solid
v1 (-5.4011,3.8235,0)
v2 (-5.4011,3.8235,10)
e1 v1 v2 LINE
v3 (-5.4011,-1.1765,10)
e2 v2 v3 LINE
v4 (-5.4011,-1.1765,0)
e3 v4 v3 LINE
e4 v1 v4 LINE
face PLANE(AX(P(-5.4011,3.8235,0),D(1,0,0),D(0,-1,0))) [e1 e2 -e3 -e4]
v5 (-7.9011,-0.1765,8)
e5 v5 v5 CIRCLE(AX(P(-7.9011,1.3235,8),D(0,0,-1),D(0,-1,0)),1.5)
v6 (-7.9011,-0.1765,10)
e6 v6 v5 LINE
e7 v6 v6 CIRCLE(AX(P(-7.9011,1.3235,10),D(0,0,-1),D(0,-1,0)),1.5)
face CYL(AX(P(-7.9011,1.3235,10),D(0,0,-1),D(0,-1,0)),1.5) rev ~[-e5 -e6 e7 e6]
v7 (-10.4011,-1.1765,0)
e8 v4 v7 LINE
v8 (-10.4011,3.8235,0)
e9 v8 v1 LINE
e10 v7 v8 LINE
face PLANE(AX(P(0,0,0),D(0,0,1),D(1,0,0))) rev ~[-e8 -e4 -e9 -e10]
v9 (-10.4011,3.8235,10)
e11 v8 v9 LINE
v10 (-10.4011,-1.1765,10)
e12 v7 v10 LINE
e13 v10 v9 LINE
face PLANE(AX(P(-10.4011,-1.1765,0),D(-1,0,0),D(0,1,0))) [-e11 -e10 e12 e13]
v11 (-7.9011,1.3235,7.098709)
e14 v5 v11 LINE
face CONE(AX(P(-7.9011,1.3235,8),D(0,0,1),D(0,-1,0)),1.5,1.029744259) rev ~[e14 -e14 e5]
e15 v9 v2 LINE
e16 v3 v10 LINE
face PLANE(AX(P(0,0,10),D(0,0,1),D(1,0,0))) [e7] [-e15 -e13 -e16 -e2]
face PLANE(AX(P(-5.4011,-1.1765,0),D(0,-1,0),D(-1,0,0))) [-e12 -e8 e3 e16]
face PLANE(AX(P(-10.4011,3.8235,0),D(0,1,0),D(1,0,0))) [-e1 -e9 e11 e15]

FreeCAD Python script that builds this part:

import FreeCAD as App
import Part
import Sketcher

V = App.Vector
Q = App.Units.Quantity


def add_polygon(sketch, points):
    """Adds a closed chain of lines whose ends are joined by coincident constraints."""
    first, n = sketch.GeometryCount, len(points)
    for a, b in zip(points, points[1:] + points[:1]):
        sketch.addGeometry(Part.LineSegment(App.Vector(*a, 0), App.Vector(*b, 0)), False)
    for i in range(n):
        sketch.addConstraint(Sketcher.Constraint("Coincident", first + i, 2, first + (i + 1) % n, 1))

doc = App.newDocument("Part")
body = doc.addObject("PartDesign::Body", "Body")

# Sketch on XY plane
sketch1 = doc.addObject("Sketcher::SketchObject", "Sketch")
body.addObject(sketch1)
sketch1.AttachmentSupport = (doc.XY_Plane, [""])
sketch1.MapMode = "FlatFace"
add_polygon(sketch1, [(-5.4011, 3.8235), (-10.4011, 3.8235), (-10.4011, -1.1765), (-5.4011, -1.1765)])  # lines 0-3
sketch1.addConstraint([
    Sketcher.Constraint("Horizontal", 0),
    Sketcher.Constraint("Vertical", 1),
    Sketcher.Constraint("Horizontal", 2),
    Sketcher.Constraint("Vertical", 3),
    Sketcher.Constraint("Equal", 2, 1),
    Sketcher.Constraint("DistanceX", 0, 2, 0, 1, Q("5 mm")),
    Sketcher.Constraint("DistanceX", 0, 2, -1, 1, Q("10.401 mm")),
    Sketcher.Constraint("DistanceY", -1, 1, 0, 2, Q("3.8235 mm")),
])
pad1 = doc.addObject("PartDesign::Pad", "Pad")
body.addObject(pad1)
pad1.Profile = sketch1
pad1.Length = 10

# Sketch on XY plane
sketch2 = doc.addObject("Sketcher::SketchObject", "Sketch001")
body.addObject(sketch2)
sketch2.AttachmentSupport = (doc.XY_Plane, [""])
sketch2.MapMode = "FlatFace"
sketch2.AttachmentOffset = App.Placement(V(0, 0, 10), App.Rotation())
sketch2.addGeometry(Part.Circle(V(-7.9011, 1.3235, 0), V(0, 0, 1), 1.5), False)
sketch2.addConstraint([
    Sketcher.Constraint("Diameter", 0, Q("3 mm")),
    Sketcher.Constraint("DistanceX", 0, 3, -1, 1, Q("7.901 mm")),
    Sketcher.Constraint("DistanceY", -1, 1, 0, 3, Q("1.3235 mm")),
])
doc.recompute()
hole = doc.addObject("PartDesign::Hole", "Hole")
body.addObject(hole)
hole.Profile = sketch2
hole.ThreadType = "None"
hole.Diameter = 3
hole.DepthType = "Dimension"
hole.Depth = 2
hole.DrillPoint = "Angled"
hole.DrillPointAngle = 118

doc.recompute()
